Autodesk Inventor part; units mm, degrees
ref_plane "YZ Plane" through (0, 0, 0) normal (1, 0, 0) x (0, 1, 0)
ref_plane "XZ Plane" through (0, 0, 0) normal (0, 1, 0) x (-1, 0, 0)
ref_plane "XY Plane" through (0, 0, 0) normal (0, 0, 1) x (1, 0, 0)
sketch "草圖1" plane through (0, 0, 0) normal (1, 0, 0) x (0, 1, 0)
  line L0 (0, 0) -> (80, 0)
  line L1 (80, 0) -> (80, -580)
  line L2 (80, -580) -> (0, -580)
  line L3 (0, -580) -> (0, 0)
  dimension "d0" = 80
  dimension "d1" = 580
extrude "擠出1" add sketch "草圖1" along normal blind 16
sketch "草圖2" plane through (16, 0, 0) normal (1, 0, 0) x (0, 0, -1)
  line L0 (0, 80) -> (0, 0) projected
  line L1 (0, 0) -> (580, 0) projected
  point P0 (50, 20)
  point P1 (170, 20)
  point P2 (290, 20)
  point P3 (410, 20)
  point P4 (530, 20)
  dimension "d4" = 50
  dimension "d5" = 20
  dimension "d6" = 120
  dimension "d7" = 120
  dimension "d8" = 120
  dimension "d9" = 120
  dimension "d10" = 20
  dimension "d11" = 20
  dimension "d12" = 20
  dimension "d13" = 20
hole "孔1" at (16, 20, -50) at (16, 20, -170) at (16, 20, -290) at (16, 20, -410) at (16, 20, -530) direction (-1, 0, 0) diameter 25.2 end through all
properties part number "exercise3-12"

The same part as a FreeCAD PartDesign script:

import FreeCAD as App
import Part
import Sketcher
from FreeCAD import Vector


def add_polygon(sketch, points):
    """Adds a closed chain of lines whose ends are joined by coincident constraints."""
    first, n = sketch.GeometryCount, len(points)
    for a, b in zip(points, points[1:] + points[:1]):
        sketch.addGeometry(Part.LineSegment(App.Vector(*a, 0), App.Vector(*b, 0)), False)
    for i in range(n):
        sketch.addConstraint(Sketcher.Constraint("Coincident", first + i, 2, first + (i + 1) % n, 1))

doc = App.newDocument("Part")
params = doc.addObject("Spreadsheet::Sheet", "Params")
for row, (alias, value) in enumerate([
    ("sketch1_width", "80 mm"),
    ("sketch1_height", "580 mm"),
    ("pad1_length", "16 mm"),
    ("sketch2_diameter", "25.2 mm"),
    ("hole_diameter", "25.2 mm"),
], start=1):
    params.set(f"A{row}", alias)
    params.set(f"B{row}", "=" + value)
    params.setAlias(f"B{row}", alias)

body = doc.addObject("PartDesign::Body", "Body")

# Sketch on YZ plane
sketch1 = body.newObject("Sketcher::SketchObject", "Sketch")
sketch1.AttachmentSupport = (doc.getObject("YZ_Plane"), [""])
sketch1.MapMode = "FlatFace"
add_polygon(sketch1, [(80, 0), (0, 0), (0, -580), (80, -580)])  # lines 0-3
sketch1.addConstraint([
    Sketcher.Constraint("Horizontal", 0),
    Sketcher.Constraint("Vertical", 1),
    Sketcher.Constraint("Horizontal", 2),
    Sketcher.Constraint("Vertical", 3),
    Sketcher.Constraint("Coincident", 0, 2, -1, 1),
    Sketcher.Constraint("DistanceX", 0, 2, 0, 1, 80.0),
    Sketcher.Constraint("DistanceY", 1, 2, 1, 1, 580.0),
])
sketch1.setExpression("Constraints[9]", "Params.sketch1_width")
sketch1.setExpression("Constraints[10]", "Params.sketch1_height")
pad1 = body.newObject("PartDesign::Pad", "Pad")
pad1.Profile = sketch1
pad1.setExpression("Length", "Params.pad1_length")

# Sketch on YZ plane
sketch2 = body.newObject("Sketcher::SketchObject", "Sketch001")
sketch2.AttachmentSupport = (doc.getObject("YZ_Plane"), [""])
sketch2.MapMode = "FlatFace"
sketch2.AttachmentOffset = App.Placement(Vector(0, 0, 16), App.Rotation())
sketch2.addGeometry([
    Part.Circle(Vector(20, -50, 0), Vector(0, 0, 1), 13),  # 0
    Part.Circle(Vector(20, -170, 0), Vector(0, 0, 1), 13),  # 1
    Part.Circle(Vector(20, -290, 0), Vector(0, 0, 1), 13),  # 2
    Part.Circle(Vector(20, -410, 0), Vector(0, 0, 1), 13),  # 3
    Part.Circle(Vector(20, -530, 0), Vector(0, 0, 1), 13),  # 4
], False)
sketch2.addConstraint([
    Sketcher.Constraint("Equal", 0, 1),
    Sketcher.Constraint("Equal", 1, 2),
    Sketcher.Constraint("Equal", 2, 3),
    Sketcher.Constraint("Equal", 3, 4),
    Sketcher.Constraint("Vertical", 0, 3, 1, 3),
    Sketcher.Constraint("Vertical", 1, 3, 2, 3),
    Sketcher.Constraint("Vertical", 2, 3, 3, 3),
    Sketcher.Constraint("Vertical", 3, 3, 4, 3),
    Sketcher.Constraint("Diameter", 0, 25.2),
    Sketcher.Constraint("DistanceX", -1, 1, 0, 3, 20.0),
    Sketcher.Constraint("DistanceY", 0, 3, -1, 1, 50.0),
    Sketcher.Constraint("DistanceY", 1, 3, -1, 1, 170.0),
    Sketcher.Constraint("DistanceY", 2, 3, -1, 1, 290.0),
    Sketcher.Constraint("DistanceY", 3, 3, -1, 1, 410.0),
    Sketcher.Constraint("DistanceY", 4, 3, -1, 1, 530.0),
])
sketch2.setExpression("Constraints[8]", "Params.sketch2_diameter")
doc.recompute()
hole = body.newObject("PartDesign::Hole", "Hole")
hole.Profile = sketch2
hole.ThreadType = "None"
hole.setExpression("Diameter", "Params.hole_diameter")
hole.DepthType = "ThroughAll"

doc.recompute()
